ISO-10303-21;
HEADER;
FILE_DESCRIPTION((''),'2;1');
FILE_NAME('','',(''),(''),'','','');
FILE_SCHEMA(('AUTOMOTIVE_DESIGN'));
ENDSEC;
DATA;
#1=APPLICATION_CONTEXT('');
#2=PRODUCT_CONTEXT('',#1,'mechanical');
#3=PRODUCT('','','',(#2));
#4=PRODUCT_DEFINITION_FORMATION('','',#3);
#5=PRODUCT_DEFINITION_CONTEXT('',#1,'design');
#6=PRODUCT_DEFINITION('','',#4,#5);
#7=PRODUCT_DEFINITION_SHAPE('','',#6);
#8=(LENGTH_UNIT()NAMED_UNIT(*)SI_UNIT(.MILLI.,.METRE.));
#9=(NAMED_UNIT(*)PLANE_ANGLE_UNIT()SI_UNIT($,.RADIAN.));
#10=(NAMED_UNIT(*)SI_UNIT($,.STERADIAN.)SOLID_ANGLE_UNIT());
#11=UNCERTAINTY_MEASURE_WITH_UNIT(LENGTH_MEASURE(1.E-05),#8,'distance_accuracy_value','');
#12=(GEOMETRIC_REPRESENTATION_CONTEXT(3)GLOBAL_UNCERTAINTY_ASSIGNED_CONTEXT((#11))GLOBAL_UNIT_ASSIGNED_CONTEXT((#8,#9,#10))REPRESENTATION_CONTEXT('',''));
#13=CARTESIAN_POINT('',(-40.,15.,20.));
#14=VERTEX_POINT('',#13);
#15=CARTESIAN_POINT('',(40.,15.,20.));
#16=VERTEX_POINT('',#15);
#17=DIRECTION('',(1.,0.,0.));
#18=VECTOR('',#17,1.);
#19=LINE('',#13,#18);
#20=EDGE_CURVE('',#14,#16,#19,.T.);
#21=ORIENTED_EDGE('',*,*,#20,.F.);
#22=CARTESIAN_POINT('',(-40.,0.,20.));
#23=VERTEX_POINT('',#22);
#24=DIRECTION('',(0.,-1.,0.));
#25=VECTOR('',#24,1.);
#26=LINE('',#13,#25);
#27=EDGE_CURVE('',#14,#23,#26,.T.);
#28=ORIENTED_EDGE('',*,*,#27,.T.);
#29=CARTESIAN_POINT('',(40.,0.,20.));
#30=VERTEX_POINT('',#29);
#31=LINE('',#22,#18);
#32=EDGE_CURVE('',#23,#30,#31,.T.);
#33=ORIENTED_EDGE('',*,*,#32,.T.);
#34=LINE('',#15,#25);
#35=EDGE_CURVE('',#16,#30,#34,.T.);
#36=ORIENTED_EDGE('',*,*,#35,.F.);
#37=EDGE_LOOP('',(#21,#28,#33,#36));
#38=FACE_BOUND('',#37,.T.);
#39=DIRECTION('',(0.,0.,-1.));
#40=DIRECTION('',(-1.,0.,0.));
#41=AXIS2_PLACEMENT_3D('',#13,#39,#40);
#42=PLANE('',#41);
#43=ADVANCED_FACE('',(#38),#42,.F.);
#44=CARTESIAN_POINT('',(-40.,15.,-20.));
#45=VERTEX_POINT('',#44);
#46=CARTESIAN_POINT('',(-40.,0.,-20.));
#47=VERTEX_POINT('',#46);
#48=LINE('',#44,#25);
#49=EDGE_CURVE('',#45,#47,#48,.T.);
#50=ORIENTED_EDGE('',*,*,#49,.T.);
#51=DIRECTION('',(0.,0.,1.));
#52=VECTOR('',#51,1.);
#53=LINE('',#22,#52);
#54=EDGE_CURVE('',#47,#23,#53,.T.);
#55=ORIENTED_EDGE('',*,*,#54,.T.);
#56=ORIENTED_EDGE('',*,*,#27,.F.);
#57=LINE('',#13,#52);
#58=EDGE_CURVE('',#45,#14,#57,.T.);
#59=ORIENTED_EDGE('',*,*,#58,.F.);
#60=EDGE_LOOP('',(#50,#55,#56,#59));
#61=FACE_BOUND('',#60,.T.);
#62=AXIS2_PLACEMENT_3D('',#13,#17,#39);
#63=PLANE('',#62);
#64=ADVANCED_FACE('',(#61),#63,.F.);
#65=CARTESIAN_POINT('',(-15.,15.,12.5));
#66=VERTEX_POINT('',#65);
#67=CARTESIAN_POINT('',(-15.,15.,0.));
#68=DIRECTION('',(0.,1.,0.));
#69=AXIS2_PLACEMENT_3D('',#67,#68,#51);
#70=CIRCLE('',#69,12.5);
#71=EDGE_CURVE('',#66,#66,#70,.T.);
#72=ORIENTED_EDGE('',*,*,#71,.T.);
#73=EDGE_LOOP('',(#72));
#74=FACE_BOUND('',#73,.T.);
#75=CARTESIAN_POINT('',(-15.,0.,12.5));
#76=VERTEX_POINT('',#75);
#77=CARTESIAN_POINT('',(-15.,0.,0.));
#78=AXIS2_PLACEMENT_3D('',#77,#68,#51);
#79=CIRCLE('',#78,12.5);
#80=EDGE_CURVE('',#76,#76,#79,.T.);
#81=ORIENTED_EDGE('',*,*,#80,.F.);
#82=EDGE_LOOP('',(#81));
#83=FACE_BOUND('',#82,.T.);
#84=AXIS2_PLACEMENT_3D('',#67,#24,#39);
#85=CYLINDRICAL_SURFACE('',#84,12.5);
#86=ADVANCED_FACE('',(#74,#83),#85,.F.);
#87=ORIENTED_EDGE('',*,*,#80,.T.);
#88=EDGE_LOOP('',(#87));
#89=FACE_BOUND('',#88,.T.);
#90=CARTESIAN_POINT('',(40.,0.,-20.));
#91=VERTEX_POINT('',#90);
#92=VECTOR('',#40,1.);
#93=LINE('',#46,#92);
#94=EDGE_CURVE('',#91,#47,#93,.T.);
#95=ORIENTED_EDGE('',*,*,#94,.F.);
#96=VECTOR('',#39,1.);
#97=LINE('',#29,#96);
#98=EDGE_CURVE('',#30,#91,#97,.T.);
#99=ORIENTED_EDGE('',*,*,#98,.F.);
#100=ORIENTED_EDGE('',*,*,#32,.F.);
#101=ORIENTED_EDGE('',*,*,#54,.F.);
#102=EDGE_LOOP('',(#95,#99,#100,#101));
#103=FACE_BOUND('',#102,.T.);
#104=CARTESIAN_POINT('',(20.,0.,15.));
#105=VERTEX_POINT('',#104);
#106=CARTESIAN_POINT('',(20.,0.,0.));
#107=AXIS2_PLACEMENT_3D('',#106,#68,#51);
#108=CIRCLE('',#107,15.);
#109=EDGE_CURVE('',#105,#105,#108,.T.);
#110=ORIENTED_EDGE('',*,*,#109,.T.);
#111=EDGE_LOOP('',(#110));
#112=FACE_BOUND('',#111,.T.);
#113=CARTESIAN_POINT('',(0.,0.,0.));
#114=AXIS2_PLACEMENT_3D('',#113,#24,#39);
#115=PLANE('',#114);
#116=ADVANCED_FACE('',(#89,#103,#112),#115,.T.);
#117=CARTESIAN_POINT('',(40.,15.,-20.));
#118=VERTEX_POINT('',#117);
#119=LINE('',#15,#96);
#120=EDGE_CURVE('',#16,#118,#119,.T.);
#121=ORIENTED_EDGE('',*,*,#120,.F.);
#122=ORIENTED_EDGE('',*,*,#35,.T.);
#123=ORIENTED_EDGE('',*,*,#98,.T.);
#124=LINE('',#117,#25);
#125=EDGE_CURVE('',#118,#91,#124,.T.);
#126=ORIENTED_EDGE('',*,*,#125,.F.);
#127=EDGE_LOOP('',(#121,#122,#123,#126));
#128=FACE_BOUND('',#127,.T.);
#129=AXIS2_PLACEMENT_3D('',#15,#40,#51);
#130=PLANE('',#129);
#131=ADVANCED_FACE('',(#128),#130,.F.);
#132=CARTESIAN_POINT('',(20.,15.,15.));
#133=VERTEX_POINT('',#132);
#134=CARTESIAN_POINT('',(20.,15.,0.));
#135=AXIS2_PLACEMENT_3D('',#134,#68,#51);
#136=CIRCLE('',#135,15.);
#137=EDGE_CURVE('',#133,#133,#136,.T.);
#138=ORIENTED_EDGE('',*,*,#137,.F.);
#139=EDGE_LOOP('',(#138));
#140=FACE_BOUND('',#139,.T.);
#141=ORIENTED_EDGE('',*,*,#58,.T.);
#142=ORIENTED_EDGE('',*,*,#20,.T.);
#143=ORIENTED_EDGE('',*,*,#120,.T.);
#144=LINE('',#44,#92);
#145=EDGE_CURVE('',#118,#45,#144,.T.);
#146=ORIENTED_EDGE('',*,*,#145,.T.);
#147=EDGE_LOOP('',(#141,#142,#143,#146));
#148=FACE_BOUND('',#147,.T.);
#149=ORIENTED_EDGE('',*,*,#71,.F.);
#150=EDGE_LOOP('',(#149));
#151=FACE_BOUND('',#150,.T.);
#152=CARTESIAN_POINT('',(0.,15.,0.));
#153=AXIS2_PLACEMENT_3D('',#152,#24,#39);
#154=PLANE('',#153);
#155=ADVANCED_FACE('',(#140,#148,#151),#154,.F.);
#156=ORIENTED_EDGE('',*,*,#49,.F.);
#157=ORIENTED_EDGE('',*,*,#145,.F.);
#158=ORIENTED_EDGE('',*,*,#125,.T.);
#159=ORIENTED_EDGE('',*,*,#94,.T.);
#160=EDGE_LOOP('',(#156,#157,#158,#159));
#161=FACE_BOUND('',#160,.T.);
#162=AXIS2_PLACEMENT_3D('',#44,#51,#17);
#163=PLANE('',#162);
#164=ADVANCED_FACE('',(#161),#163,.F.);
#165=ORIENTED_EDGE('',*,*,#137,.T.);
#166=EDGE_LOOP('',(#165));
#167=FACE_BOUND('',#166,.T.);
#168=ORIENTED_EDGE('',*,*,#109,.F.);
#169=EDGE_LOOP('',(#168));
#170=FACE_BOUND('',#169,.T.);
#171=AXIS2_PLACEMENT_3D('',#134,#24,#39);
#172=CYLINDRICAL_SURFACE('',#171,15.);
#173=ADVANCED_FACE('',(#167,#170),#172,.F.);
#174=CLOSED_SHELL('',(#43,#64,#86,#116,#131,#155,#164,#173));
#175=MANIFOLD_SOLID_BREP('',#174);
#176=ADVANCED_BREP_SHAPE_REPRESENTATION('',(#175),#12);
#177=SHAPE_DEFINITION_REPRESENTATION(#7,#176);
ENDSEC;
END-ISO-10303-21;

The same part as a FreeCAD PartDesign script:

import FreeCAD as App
import Part
import Sketcher
Q = App.Units.Quantity

doc = App.newDocument("Part")
body = doc.addObject("PartDesign::Body", "Body")

sketch1 = body.newObject("Sketcher::SketchObject", "Sketch")
sketch1.AttachmentSupport = (doc.getObject("XZ_Plane"), [""])
sketch1.MapMode = "FlatFace"
sketch1.addGeometry(Part.LineSegment(App.Vector(-40, -20, 0), App.Vector(-40, 20, 0)), False)
sketch1.addGeometry(Part.LineSegment(App.Vector(-40, 20, 0), App.Vector(40, 20, 0)), False)
sketch1.addGeometry(Part.LineSegment(App.Vector(40, 20, 0), App.Vector(40, -20, 0)), False)
sketch1.addGeometry(Part.LineSegment(App.Vector(40, -20, 0), App.Vector(-40, -20, 0)), False)
sketch1.addGeometry(Part.Circle(App.Vector(-15, 0, 0), App.Vector(0, 0, 1), 12.5), False)
sketch1.addGeometry(Part.Circle(App.Vector(20, 0, 0), App.Vector(0, 0, 1), 15), False)
sketch1.addConstraint(Sketcher.Constraint("Coincident", 0, 2, 1, 1))
sketch1.addConstraint(Sketcher.Constraint("Coincident", 1, 2, 2, 1))
sketch1.addConstraint(Sketcher.Constraint("Coincident", 2, 2, 3, 1))
sketch1.addConstraint(Sketcher.Constraint("Coincident", 3, 2, 0, 1))
sketch1.addConstraint(Sketcher.Constraint("Vertical", 0))
sketch1.addConstraint(Sketcher.Constraint("Horizontal", 1))
sketch1.addConstraint(Sketcher.Constraint("Vertical", 2))
sketch1.addConstraint(Sketcher.Constraint("Horizontal", 3))
sketch1.addConstraint(Sketcher.Constraint("Symmetric", 0, 2, 2, 2, -1, 1))
sketch1.addConstraint(Sketcher.Constraint("PointOnObject", 4, 3, -1))
sketch1.addConstraint(Sketcher.Constraint("PointOnObject", 5, 3, -1))
sketch1.addConstraint(Sketcher.Constraint("Diameter", 4, Q("25 mm")))
sketch1.addConstraint(Sketcher.Constraint("Diameter", 5, Q("30 mm")))
sketch1.addConstraint(Sketcher.Constraint("DistanceX", 1, 1, 1, 2, Q("80 mm")))
sketch1.addConstraint(Sketcher.Constraint("DistanceY", 0, 1, 0, 2, Q("40 mm")))
sketch1.addConstraint(Sketcher.Constraint("DistanceX", 4, 3, -1, 1, Q("15 mm")))
sketch1.addConstraint(Sketcher.Constraint("DistanceX", -1, 1, 5, 3, Q("20 mm")))
pad1 = body.newObject("PartDesign::Pad", "Pad")
pad1.Profile = sketch1
pad1.Length = 15
pad1.Reversed = True

doc.recompute()
